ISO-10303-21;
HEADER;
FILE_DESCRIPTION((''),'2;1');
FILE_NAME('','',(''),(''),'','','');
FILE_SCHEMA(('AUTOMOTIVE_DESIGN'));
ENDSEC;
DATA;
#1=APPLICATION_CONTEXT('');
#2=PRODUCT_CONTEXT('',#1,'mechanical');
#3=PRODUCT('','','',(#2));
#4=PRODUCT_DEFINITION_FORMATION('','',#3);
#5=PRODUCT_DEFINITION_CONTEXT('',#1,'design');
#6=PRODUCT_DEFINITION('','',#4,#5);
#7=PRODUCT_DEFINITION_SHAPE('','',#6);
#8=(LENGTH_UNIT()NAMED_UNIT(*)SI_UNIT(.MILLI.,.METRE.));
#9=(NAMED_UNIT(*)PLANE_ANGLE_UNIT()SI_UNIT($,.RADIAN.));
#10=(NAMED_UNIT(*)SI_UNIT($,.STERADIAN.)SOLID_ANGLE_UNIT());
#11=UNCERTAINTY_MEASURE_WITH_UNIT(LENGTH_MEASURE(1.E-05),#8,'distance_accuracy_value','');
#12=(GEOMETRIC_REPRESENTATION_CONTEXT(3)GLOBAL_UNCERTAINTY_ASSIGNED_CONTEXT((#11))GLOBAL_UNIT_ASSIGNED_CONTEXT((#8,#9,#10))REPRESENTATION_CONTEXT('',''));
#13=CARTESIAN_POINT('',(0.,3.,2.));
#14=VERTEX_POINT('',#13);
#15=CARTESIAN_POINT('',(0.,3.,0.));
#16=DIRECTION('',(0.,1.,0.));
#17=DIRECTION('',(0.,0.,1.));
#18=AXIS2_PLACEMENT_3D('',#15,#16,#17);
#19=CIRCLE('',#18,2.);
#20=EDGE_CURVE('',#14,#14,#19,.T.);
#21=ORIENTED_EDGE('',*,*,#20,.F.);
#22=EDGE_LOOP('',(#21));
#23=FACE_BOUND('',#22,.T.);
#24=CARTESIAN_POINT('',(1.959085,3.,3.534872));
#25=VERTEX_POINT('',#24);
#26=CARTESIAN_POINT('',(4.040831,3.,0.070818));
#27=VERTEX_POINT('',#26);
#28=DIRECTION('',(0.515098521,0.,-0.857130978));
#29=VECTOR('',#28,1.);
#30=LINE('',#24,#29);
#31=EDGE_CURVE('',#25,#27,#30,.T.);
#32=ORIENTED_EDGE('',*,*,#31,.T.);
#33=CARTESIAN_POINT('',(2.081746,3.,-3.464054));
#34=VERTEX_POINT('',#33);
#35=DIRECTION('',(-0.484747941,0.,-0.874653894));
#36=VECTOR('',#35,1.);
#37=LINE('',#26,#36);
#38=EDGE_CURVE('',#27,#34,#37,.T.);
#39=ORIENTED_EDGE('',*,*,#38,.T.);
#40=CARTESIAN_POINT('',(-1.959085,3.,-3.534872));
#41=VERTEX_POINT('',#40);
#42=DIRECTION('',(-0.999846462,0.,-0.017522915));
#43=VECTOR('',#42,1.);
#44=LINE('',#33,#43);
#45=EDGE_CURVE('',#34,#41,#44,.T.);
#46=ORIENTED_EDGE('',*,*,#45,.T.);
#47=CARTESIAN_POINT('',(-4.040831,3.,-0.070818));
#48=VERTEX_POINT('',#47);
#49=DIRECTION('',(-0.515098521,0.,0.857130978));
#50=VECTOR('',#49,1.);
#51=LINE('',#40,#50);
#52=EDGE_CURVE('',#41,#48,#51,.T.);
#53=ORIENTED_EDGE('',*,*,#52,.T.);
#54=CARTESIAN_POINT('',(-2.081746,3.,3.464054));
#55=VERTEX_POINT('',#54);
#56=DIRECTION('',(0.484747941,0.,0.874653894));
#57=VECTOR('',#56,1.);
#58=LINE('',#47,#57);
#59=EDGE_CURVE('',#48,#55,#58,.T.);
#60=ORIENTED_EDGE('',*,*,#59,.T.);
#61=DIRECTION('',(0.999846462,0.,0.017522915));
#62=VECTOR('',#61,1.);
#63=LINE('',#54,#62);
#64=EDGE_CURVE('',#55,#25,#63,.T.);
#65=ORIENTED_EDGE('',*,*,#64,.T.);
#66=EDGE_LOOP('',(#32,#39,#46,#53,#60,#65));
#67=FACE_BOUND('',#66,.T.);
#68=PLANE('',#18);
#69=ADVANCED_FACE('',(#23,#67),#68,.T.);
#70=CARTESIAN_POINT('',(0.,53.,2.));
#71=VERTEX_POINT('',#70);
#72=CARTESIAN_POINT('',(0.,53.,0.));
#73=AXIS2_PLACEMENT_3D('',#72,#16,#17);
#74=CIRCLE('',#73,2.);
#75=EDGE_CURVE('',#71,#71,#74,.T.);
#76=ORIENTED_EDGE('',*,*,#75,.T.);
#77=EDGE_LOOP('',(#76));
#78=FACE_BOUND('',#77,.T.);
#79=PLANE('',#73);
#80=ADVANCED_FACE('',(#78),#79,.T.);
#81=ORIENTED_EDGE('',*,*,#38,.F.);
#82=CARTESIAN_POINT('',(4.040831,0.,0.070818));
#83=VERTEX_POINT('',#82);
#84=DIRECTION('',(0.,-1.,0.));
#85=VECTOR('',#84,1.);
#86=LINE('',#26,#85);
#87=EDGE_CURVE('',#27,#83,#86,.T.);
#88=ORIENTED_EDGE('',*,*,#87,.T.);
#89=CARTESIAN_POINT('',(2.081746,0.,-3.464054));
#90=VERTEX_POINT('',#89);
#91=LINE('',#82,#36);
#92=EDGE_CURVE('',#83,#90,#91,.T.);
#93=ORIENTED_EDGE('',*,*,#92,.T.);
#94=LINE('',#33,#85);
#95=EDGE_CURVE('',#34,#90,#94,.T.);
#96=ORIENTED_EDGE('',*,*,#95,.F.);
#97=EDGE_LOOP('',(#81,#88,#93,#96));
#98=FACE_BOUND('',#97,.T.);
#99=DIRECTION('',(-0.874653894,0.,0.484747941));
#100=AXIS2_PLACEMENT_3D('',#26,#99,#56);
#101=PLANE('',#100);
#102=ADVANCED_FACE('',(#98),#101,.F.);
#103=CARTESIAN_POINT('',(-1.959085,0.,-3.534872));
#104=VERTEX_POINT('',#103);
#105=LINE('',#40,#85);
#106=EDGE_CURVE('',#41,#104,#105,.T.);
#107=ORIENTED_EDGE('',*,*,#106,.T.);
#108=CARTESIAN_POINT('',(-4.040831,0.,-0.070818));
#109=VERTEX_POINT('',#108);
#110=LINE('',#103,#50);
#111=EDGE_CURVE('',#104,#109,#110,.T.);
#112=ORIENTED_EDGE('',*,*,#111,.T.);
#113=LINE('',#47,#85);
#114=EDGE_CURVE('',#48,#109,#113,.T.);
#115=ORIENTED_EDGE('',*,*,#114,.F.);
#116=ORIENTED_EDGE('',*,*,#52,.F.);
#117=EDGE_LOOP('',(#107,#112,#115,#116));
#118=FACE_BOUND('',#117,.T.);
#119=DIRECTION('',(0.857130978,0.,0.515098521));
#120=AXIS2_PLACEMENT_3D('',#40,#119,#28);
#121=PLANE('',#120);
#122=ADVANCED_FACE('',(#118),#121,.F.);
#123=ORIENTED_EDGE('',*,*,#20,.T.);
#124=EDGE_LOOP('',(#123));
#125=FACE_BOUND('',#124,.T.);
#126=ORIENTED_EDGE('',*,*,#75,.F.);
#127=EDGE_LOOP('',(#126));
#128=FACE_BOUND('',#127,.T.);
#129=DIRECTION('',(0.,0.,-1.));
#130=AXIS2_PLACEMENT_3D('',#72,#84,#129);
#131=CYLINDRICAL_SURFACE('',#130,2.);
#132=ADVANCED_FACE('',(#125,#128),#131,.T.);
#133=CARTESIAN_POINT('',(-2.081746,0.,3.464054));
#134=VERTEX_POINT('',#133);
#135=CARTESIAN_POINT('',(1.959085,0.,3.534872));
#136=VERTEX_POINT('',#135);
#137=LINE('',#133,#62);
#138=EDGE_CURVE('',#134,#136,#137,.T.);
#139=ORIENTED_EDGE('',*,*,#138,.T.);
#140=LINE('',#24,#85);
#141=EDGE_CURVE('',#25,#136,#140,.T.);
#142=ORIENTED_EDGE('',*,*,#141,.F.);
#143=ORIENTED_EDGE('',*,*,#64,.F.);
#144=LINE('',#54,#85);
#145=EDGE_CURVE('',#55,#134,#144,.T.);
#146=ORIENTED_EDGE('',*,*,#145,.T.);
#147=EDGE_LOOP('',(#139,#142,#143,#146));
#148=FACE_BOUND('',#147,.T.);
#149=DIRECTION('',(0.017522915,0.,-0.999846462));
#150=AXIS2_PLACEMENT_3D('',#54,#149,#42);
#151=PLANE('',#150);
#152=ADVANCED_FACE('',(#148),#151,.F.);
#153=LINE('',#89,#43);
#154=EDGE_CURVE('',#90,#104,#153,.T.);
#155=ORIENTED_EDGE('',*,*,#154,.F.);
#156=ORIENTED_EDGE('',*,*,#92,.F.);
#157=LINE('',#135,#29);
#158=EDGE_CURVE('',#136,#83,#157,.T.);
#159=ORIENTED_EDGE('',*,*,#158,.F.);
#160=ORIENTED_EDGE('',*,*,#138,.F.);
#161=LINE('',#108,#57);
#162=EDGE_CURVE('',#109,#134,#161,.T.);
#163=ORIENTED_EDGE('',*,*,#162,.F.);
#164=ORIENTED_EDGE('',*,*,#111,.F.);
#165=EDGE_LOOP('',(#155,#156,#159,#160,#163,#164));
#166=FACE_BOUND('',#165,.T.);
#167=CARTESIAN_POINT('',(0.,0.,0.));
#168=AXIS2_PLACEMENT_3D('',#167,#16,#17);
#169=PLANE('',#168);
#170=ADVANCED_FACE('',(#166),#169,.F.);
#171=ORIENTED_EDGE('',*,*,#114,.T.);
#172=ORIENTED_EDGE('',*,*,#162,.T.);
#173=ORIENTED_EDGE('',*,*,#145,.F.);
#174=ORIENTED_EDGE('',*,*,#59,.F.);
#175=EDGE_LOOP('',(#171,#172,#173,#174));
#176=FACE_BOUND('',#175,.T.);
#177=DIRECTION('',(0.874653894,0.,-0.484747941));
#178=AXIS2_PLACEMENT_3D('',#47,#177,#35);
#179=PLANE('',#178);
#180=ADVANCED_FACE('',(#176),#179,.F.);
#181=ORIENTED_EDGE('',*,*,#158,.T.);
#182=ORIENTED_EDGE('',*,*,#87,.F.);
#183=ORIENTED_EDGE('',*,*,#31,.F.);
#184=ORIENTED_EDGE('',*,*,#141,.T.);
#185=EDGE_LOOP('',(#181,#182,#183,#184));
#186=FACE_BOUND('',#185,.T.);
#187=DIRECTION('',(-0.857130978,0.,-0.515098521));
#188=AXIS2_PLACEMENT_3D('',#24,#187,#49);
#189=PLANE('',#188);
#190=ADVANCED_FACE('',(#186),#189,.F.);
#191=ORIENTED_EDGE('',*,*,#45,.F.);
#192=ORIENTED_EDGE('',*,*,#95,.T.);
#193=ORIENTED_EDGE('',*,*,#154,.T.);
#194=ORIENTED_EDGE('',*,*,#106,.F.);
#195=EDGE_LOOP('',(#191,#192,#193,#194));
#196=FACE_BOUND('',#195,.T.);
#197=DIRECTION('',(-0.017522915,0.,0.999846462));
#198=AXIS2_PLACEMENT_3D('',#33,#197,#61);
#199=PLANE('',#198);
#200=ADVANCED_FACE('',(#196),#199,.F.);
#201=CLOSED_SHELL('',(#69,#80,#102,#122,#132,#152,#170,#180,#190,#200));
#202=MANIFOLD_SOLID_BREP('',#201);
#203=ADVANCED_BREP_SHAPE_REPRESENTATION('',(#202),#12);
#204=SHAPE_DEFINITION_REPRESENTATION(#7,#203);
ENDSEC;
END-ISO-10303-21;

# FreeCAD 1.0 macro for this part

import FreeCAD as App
import Part
import Sketcher

V = App.Vector
Q = App.Units.Quantity

doc = App.newDocument("Part")
body = doc.addObject("PartDesign::Body", "Body")

# Sketch on XZ plane
sketch1 = doc.addObject("Sketcher::SketchObject", "Sketch")
body.addObject(sketch1)
sketch1.AttachmentSupport = (doc.XZ_Plane, [""])
sketch1.MapMode = "FlatFace"
sketch1.addGeometry(Part.LineSegment(V(2, 3.5, 0), V(4, 0.1, 0)), False)
sketch1.addGeometry(Part.LineSegment(V(4, 0.1, 0), V(2.1, -3.5, 0)), False)
sketch1.addGeometry(Part.LineSegment(V(2.1, -3.5, 0), V(-2, -3.5, 0)), False)
sketch1.addGeometry(Part.LineSegment(V(-2, -3.5, 0), V(-4, -0.1, 0)), False)
sketch1.addGeometry(Part.LineSegment(V(-4, -0.1, 0), V(-2.1, 3.5, 0)), False)
sketch1.addGeometry(Part.LineSegment(V(-2.1, 3.5, 0), V(2, 3.5, 0)), False)
sketch1.addConstraint(Sketcher.Constraint("Coincident", 0, 2, 1, 1))
sketch1.addConstraint(Sketcher.Constraint("Coincident", 1, 2, 2, 1))
sketch1.addConstraint(Sketcher.Constraint("Coincident", 2, 2, 3, 1))
sketch1.addConstraint(Sketcher.Constraint("Coincident", 3, 2, 4, 1))
sketch1.addConstraint(Sketcher.Constraint("Coincident", 4, 2, 5, 1))
sketch1.addConstraint(Sketcher.Constraint("Coincident", 5, 2, 0, 1))
sketch1.addConstraint(Sketcher.Constraint("Symmetric", 0, 2, 3, 2, -1, 1))
sketch1.addConstraint(Sketcher.Constraint("Symmetric", 1, 2, 4, 2, -1, 1))
sketch1.addConstraint(Sketcher.Constraint("Symmetric", 2, 2, 5, 2, -1, 1))
sketch1.addConstraint(Sketcher.Constraint("Equal", 0, 1))
sketch1.addConstraint(Sketcher.Constraint("Equal", 1, 2))
sketch1.addConstraint(Sketcher.Constraint("Distance", 0, Q("4.041452 mm")))
sketch1.addConstraint(Sketcher.Constraint("DistanceX", -1, 1, 0, 2, Q("4.040831 mm")))
sketch1.addConstraint(Sketcher.Constraint("DistanceY", -1, 1, 0, 2, Q("0.070818 mm")))
sketch1.addConstraint(Sketcher.Constraint("DistanceY", 2, 2, -1, 1, Q("3.534872 mm")))
pad1 = doc.addObject("PartDesign::Pad", "Pad")
body.addObject(pad1)
pad1.Profile = sketch1
pad1.Length = 3
pad1.Reversed = True

# Sketch on XZ plane
sketch2 = doc.addObject("Sketcher::SketchObject", "Sketch001")
body.addObject(sketch2)
sketch2.AttachmentSupport = (doc.XZ_Plane, [""])
sketch2.MapMode = "FlatFace"
sketch2.AttachmentOffset = App.Placement(V(0, 0, -3), App.Rotation())
sketch2.addGeometry(Part.Circle(V(0, 0, 0), V(0, 0, 1), 2), False)
sketch2.addConstraint(Sketcher.Constraint("Coincident", 0, 3, -1, 1))
sketch2.addConstraint(Sketcher.Constraint("Diameter", 0, Q("4 mm")))
pad2 = doc.addObject("PartDesign::Pad", "Pad001")
body.addObject(pad2)
pad2.Profile = sketch2
pad2.Length = 50
pad2.Reversed = True

doc.recompute()
